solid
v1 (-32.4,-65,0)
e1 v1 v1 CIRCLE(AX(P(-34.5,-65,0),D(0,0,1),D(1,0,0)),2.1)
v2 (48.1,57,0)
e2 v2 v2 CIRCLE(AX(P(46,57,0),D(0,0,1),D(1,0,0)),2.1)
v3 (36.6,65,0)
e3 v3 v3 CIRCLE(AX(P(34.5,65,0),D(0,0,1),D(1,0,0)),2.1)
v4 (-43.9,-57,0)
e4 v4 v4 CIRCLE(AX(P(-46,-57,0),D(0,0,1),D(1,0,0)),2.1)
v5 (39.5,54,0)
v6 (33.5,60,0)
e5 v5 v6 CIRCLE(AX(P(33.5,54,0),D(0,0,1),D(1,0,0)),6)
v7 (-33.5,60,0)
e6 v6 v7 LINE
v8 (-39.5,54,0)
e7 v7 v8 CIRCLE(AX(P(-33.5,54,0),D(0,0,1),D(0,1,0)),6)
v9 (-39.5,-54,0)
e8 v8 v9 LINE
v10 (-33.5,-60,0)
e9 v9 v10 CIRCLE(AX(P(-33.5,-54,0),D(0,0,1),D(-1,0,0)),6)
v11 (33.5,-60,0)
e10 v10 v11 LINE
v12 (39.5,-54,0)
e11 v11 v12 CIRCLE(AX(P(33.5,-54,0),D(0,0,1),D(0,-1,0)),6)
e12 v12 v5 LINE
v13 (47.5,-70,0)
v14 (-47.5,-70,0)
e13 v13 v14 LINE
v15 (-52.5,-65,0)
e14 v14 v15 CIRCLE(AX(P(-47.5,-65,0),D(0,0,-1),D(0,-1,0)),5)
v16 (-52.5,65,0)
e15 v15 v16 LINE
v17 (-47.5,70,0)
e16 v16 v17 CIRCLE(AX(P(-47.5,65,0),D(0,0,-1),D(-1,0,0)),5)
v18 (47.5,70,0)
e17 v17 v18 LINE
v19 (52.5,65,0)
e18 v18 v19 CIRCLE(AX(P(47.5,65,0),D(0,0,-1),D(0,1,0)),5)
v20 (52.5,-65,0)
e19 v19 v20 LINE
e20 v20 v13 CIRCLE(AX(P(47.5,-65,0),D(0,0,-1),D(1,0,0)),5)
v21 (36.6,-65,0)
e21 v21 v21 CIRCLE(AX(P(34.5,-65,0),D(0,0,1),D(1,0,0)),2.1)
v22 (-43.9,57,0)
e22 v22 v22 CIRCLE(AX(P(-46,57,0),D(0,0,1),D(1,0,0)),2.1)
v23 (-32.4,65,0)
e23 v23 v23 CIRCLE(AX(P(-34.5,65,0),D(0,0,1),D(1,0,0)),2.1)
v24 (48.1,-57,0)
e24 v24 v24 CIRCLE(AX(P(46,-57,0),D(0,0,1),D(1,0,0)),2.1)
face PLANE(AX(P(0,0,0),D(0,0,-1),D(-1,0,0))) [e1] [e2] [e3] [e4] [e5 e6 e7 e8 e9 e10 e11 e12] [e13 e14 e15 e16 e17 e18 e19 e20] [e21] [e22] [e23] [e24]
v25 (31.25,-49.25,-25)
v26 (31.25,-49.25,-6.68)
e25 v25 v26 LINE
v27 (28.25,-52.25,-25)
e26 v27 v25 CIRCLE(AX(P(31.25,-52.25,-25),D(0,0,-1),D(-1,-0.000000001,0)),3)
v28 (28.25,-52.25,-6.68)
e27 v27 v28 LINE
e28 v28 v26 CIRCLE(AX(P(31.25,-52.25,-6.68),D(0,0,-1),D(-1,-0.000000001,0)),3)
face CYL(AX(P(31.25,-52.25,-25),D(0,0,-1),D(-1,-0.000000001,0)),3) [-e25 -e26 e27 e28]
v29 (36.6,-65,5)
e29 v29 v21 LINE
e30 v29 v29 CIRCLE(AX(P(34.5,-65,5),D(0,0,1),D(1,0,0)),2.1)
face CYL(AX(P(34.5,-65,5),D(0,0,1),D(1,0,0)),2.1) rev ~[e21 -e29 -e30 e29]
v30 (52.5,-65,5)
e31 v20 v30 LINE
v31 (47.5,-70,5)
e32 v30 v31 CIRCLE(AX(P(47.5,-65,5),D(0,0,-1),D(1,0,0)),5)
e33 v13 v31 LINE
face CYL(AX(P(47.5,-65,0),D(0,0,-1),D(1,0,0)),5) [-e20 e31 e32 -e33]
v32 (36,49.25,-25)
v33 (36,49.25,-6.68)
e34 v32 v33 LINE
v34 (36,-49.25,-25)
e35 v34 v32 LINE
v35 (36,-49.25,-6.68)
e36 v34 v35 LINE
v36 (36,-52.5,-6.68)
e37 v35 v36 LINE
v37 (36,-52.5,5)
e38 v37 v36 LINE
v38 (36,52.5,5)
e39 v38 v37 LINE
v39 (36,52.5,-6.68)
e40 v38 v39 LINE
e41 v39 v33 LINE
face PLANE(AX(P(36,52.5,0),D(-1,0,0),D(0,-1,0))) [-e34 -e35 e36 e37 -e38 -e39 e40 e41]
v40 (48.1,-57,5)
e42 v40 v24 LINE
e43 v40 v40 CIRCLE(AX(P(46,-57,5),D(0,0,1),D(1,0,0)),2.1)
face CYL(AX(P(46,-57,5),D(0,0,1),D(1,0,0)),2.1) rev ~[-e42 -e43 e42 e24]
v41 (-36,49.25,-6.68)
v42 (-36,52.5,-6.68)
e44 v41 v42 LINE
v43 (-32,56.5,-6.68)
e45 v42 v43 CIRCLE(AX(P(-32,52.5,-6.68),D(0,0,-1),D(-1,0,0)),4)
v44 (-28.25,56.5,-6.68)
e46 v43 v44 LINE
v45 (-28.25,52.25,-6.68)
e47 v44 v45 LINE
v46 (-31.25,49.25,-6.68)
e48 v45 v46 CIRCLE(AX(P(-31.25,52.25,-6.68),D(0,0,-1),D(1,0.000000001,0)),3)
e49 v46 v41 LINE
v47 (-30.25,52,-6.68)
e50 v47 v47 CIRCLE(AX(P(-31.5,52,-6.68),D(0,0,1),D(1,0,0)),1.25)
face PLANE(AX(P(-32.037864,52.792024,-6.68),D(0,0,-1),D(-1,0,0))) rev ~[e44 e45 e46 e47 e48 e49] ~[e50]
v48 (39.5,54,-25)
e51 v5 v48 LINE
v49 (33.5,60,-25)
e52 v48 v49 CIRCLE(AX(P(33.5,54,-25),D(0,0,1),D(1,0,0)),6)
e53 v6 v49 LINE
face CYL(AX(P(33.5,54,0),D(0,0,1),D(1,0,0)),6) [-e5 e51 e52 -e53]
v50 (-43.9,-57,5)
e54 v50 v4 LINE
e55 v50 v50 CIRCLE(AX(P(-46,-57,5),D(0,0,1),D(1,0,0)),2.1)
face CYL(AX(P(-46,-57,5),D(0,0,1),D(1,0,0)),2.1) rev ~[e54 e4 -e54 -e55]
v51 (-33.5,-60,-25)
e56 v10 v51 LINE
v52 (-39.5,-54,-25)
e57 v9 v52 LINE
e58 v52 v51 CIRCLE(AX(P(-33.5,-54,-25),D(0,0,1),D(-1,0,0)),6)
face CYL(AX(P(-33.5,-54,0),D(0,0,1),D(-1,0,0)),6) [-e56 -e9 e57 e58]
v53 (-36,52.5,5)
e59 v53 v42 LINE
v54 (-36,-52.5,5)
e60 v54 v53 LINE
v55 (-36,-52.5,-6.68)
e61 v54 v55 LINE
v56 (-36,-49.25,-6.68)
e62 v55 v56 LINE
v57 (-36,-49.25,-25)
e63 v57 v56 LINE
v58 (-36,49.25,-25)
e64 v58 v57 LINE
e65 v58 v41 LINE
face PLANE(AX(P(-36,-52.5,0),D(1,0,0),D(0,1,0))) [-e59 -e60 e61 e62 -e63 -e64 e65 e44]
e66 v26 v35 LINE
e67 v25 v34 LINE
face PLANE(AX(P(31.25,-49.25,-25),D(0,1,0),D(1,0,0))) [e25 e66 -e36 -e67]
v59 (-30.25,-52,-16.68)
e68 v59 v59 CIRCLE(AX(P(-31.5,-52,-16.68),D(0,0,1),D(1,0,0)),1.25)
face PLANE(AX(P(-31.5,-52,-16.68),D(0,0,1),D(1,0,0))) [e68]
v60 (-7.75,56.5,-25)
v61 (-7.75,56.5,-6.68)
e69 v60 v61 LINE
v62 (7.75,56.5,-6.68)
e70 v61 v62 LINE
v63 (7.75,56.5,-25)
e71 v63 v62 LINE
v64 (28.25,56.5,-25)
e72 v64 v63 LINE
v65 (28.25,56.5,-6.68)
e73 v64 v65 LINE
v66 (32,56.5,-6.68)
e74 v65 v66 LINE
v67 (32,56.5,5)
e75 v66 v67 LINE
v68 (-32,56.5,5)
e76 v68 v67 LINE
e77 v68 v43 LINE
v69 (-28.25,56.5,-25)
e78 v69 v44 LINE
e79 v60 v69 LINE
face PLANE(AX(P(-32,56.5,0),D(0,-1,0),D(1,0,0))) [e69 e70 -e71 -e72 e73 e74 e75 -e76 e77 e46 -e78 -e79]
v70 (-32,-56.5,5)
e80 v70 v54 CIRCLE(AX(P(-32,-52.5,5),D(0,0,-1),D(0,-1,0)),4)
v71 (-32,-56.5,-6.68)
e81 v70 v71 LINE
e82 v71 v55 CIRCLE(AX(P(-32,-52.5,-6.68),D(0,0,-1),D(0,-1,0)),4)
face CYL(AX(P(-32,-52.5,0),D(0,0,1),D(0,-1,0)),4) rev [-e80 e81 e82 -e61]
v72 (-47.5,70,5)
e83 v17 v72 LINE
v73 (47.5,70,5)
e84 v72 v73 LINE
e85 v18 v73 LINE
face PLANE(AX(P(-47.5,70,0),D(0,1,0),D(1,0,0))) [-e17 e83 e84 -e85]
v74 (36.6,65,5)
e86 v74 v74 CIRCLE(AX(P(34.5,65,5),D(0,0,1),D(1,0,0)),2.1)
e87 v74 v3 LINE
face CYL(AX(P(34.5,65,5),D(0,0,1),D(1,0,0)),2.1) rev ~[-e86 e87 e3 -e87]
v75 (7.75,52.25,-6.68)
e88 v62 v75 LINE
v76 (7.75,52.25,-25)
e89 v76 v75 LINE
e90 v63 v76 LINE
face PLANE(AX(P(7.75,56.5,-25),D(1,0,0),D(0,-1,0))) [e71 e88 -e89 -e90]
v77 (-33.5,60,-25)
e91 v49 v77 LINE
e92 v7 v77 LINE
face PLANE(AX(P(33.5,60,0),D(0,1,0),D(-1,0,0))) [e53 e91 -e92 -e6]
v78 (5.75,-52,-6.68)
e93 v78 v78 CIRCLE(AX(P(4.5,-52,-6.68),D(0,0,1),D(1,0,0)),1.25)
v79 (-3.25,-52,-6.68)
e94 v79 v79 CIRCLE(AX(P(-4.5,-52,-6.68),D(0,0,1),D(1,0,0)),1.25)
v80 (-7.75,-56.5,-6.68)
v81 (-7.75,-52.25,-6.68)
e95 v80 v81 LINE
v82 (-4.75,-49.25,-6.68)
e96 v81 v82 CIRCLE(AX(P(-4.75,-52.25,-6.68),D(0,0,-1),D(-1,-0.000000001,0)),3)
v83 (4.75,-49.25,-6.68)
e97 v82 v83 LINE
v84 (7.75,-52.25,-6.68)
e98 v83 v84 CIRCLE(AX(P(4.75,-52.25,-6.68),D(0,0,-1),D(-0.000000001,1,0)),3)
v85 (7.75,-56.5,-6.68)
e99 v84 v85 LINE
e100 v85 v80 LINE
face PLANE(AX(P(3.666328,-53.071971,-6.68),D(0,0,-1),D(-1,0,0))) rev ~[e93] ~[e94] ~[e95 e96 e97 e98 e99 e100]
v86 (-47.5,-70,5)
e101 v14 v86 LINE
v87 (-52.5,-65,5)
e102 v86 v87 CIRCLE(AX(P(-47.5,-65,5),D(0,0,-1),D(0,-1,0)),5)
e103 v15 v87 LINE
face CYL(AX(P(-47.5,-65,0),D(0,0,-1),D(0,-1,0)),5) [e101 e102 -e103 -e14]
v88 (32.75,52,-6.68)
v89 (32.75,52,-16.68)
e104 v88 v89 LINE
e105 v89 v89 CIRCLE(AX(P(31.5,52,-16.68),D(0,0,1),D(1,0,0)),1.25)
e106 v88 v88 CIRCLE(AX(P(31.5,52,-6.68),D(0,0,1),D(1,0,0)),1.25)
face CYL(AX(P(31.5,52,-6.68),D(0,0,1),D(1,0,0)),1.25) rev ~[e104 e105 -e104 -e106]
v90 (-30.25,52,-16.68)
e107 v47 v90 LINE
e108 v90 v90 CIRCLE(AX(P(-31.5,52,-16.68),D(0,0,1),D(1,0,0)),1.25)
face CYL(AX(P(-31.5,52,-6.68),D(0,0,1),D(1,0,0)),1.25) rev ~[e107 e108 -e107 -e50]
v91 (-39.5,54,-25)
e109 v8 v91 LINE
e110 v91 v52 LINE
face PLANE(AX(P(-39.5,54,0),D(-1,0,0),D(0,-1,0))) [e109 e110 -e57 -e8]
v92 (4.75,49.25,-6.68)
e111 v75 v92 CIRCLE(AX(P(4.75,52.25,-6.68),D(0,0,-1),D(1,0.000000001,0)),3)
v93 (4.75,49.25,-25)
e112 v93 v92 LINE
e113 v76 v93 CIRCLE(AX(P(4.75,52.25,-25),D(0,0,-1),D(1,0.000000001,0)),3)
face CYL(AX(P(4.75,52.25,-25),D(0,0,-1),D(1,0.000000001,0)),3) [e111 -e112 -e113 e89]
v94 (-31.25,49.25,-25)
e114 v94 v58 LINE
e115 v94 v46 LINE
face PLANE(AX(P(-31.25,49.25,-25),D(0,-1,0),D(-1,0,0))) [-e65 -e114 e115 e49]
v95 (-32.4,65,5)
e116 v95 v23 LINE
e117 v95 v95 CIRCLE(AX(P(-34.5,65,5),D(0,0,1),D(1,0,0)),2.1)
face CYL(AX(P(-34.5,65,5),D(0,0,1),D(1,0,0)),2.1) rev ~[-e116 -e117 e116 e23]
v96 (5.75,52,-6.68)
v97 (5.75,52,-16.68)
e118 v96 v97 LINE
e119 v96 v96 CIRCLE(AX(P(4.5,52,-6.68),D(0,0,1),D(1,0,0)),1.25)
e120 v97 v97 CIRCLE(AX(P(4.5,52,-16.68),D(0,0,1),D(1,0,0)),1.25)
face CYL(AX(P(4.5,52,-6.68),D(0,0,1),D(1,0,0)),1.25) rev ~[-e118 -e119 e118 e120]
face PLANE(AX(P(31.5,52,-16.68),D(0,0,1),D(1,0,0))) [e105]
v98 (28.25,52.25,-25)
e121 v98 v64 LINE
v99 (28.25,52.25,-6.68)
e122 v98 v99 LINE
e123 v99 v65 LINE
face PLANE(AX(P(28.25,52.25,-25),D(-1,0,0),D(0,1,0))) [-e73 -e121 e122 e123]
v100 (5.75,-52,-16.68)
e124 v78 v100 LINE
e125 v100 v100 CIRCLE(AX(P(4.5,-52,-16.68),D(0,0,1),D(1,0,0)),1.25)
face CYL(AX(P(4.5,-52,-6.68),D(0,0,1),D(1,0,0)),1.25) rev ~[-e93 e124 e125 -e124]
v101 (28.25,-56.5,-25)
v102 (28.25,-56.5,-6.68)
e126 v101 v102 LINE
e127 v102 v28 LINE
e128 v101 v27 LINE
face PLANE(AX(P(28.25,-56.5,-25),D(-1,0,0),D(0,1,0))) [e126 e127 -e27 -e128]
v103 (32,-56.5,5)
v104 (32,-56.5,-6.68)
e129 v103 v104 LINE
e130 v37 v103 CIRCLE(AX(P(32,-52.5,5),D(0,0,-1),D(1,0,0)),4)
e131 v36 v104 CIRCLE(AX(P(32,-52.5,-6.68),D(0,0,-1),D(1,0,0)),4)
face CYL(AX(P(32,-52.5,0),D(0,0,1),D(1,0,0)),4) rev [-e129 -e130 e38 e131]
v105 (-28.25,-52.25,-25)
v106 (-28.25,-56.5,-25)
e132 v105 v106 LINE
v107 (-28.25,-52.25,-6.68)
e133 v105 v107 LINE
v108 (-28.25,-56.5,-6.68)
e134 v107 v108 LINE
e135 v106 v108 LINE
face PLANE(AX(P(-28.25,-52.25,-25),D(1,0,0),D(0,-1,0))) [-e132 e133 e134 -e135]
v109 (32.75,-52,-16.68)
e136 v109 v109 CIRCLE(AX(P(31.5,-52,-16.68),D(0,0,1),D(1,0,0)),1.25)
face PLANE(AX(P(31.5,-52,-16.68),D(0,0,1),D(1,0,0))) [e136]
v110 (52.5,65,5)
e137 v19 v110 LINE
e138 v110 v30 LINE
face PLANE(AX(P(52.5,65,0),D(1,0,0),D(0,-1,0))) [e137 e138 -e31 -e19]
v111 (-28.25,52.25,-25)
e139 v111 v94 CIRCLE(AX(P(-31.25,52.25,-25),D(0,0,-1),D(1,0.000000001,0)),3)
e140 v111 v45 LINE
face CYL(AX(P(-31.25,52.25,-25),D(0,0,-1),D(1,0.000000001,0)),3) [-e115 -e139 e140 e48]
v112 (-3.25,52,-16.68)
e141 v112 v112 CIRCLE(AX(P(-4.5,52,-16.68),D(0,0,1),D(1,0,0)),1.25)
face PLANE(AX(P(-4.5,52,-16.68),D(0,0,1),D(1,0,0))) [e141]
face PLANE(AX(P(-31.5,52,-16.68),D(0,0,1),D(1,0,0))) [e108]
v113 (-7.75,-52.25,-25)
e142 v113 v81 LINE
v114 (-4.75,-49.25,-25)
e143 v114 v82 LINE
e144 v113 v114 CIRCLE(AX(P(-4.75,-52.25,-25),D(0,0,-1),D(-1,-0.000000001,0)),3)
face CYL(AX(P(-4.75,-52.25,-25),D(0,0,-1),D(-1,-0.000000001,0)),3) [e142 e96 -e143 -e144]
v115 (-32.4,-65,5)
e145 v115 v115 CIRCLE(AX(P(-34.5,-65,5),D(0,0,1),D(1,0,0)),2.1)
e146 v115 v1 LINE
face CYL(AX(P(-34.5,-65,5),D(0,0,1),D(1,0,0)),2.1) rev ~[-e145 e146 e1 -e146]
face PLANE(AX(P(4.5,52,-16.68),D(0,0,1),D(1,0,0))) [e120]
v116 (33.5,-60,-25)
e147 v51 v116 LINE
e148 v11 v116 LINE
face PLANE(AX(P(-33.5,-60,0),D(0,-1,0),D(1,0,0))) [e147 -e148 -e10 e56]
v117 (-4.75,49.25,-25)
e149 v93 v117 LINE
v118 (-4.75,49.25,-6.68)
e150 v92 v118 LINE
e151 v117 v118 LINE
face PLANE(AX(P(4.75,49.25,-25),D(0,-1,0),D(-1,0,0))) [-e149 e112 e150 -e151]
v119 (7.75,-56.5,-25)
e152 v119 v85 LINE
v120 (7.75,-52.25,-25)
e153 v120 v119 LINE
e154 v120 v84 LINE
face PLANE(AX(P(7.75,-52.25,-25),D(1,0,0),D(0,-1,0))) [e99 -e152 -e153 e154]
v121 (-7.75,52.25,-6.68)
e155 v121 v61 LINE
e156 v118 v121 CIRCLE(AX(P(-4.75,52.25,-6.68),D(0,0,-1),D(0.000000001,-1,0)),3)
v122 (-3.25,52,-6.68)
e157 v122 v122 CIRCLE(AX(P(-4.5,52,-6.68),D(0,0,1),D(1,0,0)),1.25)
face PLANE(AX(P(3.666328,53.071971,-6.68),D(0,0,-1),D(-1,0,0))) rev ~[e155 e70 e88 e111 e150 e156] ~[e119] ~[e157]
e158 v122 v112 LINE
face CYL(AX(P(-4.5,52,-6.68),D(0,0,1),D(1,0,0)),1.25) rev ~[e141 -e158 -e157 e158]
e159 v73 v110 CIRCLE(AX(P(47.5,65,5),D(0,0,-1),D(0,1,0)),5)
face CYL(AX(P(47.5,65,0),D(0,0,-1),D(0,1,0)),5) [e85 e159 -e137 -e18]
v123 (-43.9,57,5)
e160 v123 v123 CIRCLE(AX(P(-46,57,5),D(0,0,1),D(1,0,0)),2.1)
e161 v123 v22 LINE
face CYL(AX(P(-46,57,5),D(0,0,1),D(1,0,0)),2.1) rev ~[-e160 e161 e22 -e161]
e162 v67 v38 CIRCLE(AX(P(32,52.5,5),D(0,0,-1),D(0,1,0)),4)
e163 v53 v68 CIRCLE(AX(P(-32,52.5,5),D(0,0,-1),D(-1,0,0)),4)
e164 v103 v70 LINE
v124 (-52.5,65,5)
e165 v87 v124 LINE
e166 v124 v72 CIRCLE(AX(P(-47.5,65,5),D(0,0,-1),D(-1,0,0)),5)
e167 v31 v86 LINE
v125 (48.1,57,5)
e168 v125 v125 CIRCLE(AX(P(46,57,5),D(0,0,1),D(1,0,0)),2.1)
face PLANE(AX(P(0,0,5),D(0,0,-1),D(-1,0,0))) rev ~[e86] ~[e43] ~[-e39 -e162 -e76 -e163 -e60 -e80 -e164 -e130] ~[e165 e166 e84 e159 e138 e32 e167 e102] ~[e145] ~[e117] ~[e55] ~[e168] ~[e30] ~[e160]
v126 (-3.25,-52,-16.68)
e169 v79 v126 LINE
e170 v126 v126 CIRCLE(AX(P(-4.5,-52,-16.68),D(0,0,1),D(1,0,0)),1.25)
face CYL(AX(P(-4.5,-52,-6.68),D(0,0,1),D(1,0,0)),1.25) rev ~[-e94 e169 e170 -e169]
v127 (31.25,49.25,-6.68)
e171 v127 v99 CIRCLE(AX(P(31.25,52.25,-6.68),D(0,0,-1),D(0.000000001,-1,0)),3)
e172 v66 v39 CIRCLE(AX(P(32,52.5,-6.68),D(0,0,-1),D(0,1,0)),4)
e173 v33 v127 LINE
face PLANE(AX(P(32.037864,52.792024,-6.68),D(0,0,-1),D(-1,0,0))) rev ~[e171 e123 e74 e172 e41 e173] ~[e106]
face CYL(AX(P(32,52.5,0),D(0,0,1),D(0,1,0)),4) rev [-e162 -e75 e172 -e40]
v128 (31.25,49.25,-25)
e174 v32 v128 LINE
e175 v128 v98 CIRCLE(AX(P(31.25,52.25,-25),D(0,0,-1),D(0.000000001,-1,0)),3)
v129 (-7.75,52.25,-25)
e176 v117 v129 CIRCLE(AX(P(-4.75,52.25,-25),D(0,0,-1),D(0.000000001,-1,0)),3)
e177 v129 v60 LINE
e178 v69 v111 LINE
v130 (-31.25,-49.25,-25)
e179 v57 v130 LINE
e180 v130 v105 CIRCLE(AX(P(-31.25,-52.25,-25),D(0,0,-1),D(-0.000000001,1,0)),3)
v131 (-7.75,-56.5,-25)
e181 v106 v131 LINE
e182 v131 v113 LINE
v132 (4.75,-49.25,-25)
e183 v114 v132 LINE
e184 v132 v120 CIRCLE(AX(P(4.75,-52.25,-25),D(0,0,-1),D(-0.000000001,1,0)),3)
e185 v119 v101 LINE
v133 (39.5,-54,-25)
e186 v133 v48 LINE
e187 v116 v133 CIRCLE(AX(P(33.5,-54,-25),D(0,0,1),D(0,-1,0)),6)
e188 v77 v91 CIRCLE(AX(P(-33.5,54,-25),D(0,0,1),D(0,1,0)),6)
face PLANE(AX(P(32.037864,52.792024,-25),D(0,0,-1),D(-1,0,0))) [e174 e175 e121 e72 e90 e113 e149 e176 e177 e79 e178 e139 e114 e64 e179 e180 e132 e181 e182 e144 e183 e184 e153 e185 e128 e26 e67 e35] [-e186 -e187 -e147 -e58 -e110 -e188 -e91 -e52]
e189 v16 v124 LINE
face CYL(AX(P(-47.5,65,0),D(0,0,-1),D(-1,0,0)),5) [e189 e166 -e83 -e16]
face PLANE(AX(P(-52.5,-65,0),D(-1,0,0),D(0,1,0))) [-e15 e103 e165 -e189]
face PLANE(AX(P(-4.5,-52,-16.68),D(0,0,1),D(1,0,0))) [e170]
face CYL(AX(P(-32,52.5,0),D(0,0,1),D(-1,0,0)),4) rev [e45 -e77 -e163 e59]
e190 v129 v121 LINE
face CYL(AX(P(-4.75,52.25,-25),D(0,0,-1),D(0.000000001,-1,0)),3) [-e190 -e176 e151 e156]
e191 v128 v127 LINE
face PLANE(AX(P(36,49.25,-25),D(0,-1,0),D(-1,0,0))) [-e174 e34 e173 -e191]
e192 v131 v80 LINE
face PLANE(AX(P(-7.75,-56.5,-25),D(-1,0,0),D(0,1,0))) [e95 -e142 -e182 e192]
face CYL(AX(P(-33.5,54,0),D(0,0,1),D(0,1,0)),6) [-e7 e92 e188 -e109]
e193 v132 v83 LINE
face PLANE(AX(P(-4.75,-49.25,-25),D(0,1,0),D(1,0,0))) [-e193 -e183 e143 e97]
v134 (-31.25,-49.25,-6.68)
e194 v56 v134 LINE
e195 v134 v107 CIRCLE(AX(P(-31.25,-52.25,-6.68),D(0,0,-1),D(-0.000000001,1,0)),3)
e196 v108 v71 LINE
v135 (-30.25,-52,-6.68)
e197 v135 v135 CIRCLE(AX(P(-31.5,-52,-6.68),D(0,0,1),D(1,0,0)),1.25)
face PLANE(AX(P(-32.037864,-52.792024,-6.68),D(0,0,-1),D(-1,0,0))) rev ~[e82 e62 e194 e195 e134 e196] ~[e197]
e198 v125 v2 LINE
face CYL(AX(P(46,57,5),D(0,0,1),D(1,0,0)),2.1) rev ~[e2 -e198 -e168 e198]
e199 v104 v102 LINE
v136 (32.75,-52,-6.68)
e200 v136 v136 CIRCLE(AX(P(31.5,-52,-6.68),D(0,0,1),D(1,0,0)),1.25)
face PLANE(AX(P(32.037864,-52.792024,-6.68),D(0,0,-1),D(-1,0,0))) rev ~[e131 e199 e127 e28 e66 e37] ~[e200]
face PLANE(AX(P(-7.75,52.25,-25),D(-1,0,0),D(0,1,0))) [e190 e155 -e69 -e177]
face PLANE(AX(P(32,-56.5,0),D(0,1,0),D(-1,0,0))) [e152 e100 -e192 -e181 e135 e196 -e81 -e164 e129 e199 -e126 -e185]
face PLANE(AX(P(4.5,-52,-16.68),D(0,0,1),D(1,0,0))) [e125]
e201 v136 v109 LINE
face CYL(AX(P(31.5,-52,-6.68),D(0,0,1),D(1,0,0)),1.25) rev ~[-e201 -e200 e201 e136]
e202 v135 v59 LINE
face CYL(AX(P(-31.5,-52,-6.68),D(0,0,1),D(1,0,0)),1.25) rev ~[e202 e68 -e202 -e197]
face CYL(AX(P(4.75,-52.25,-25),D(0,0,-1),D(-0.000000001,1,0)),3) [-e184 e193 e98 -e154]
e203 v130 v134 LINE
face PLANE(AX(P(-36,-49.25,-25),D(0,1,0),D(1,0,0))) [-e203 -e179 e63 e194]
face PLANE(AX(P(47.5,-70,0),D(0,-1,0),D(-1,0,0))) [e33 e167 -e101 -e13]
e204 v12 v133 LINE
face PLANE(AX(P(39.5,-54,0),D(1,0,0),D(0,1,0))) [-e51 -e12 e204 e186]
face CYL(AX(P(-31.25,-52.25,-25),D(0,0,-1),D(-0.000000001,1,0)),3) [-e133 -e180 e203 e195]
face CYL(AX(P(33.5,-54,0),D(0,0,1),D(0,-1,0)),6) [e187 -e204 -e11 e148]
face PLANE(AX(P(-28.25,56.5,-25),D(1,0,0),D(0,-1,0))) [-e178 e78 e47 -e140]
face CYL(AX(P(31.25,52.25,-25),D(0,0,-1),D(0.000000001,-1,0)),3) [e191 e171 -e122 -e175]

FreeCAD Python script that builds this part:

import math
import FreeCAD as App
import Part
import Sketcher
from FreeCAD import Vector

doc = App.newDocument("Part")
body = doc.addObject("PartDesign::Body", "Body")

sketch1 = doc.addObject("Sketcher::SketchObject", "Sketch")
body.addObject(sketch1)
sketch1.AttachmentSupport = (doc.XY_Plane, [""])
sketch1.MapMode = "FlatFace"
sketch1.addGeometry([
    Part.LineSegment(Vector(47.5, 70, 0), Vector(-47.5, 70, 0)),
    Part.ArcOfCircle(Part.Circle(Vector(-47.5, 65, 0), Vector(0, 0, 1), 5), math.radians(90), math.radians(180)),
    Part.LineSegment(Vector(-52.5, 65, 0), Vector(-52.5, -65, 0)),
    Part.ArcOfCircle(Part.Circle(Vector(-47.5, -65, 0), Vector(0, 0, 1), 5), math.radians(180), math.radians(270)),
    Part.LineSegment(Vector(-47.5, -70, 0), Vector(47.5, -70, 0)),
    Part.ArcOfCircle(Part.Circle(Vector(47.5, -65, 0), Vector(0, 0, 1), 5), math.radians(-90), math.radians(0)),
    Part.LineSegment(Vector(52.5, -65, 0), Vector(52.5, 65, 0)),
    Part.ArcOfCircle(Part.Circle(Vector(47.5, 65, 0), Vector(0, 0, 1), 5), math.radians(0), math.radians(90)),
    Part.LineSegment(Vector(-32, 56.5, 0), Vector(32, 56.5, 0)),
    Part.ArcOfCircle(Part.Circle(Vector(32, 52.5, 0), Vector(0, 0, 1), 4), math.radians(0), math.radians(90)),
    Part.LineSegment(Vector(36, 52.5, 0), Vector(36, -52.5, 0)),
    Part.ArcOfCircle(Part.Circle(Vector(32, -52.5, 0), Vector(0, 0, 1), 4), math.radians(-90), math.radians(0)),
    Part.LineSegment(Vector(32, -56.5, 0), Vector(-32, -56.5, 0)),
    Part.ArcOfCircle(Part.Circle(Vector(-32, -52.5, 0), Vector(0, 0, 1), 4), math.radians(180), math.radians(270)),
    Part.LineSegment(Vector(-36, -52.5, 0), Vector(-36, 52.5, 0)),
    Part.ArcOfCircle(Part.Circle(Vector(-32, 52.5, 0), Vector(0, 0, 1), 4), math.radians(90), math.radians(180)),
], False)
sketch1.addConstraint([
    Sketcher.Constraint("Tangent", 0, 2, 1, 1),
    Sketcher.Constraint("Tangent", 1, 2, 2, 1),
    Sketcher.Constraint("Tangent", 2, 2, 3, 1),
    Sketcher.Constraint("Tangent", 3, 2, 4, 1),
    Sketcher.Constraint("Tangent", 4, 2, 5, 1),
    Sketcher.Constraint("Tangent", 5, 2, 6, 1),
    Sketcher.Constraint("Tangent", 6, 2, 7, 1),
    Sketcher.Constraint("Tangent", 7, 2, 0, 1),
    Sketcher.Constraint("Tangent", 8, 2, 9, 2),
    Sketcher.Constraint("Tangent", 9, 1, 10, 1),
    Sketcher.Constraint("Tangent", 10, 2, 11, 2),
    Sketcher.Constraint("Tangent", 11, 1, 12, 1),
    Sketcher.Constraint("Tangent", 12, 2, 13, 2),
    Sketcher.Constraint("Tangent", 13, 1, 14, 1),
    Sketcher.Constraint("Tangent", 14, 2, 15, 2),
    Sketcher.Constraint("Tangent", 15, 1, 8, 1),
    Sketcher.Constraint("Horizontal", 0),
    Sketcher.Constraint("Vertical", 2),
    Sketcher.Constraint("Horizontal", 4),
    Sketcher.Constraint("Vertical", 6),
    Sketcher.Constraint("Horizontal", 8),
    Sketcher.Constraint("Vertical", 10),
    Sketcher.Constraint("Horizontal", 12),
    Sketcher.Constraint("Vertical", 14),
    Sketcher.Constraint("Equal", 1, 3),
    Sketcher.Constraint("Equal", 3, 5),
    Sketcher.Constraint("Equal", 5, 7),
    Sketcher.Constraint("Equal", 9, 11),
    Sketcher.Constraint("Equal", 11, 13),
    Sketcher.Constraint("Equal", 13, 15),
    Sketcher.Constraint("Symmetric", 1, 3, 5, 3, -1, 1),
    Sketcher.Constraint("Symmetric", 9, 3, 13, 3, -1, 1),
    Sketcher.Constraint("Radius", 1, 5.0),
    Sketcher.Constraint("Radius", 9, 4.0),
    Sketcher.Constraint("DistanceX", 0, 2, 0, 1, 95.0),
    Sketcher.Constraint("DistanceX", 8, 1, 8, 2, 64.0),
    Sketcher.Constraint("DistanceY", 2, 2, 2, 1, 130.0),
    Sketcher.Constraint("DistanceY", 10, 2, 10, 1, 105.0),
])
pad1 = doc.addObject("PartDesign::Pad", "Pad")
body.addObject(pad1)
pad1.Profile = sketch1
pad1.Length = 5

sketch2 = doc.addObject("Sketcher::SketchObject", "Sketch001")
body.addObject(sketch2)
sketch2.AttachmentSupport = (doc.XY_Plane, [""])
sketch2.MapMode = "FlatFace"
sketch2.addGeometry([
    Part.LineSegment(Vector(-34, 60, 0), Vector(34, 60, 0)),
    Part.ArcOfCircle(Part.Circle(Vector(34, 54, 0), Vector(0, 0, 1), 6), math.radians(0), math.radians(90)),
    Part.LineSegment(Vector(40, 54, 0), Vector(40, -54, 0)),
    Part.ArcOfCircle(Part.Circle(Vector(34, -54, 0), Vector(0, 0, 1), 6), math.radians(-90), math.radians(0)),
    Part.LineSegment(Vector(34, -60, 0), Vector(-34, -60, 0)),
    Part.ArcOfCircle(Part.Circle(Vector(-34, -54, 0), Vector(0, 0, 1), 6), math.radians(180), math.radians(270)),
    Part.LineSegment(Vector(-40, -54, 0), Vector(-40, 54, 0)),
    Part.ArcOfCircle(Part.Circle(Vector(-34, 54, 0), Vector(0, 0, 1), 6), math.radians(90), math.radians(180)),
], False)
sketch2.addConstraint([
    Sketcher.Constraint("Tangent", 0, 2, 1, 2),
    Sketcher.Constraint("Tangent", 1, 1, 2, 1),
    Sketcher.Constraint("Tangent", 2, 2, 3, 2),
    Sketcher.Constraint("Tangent", 3, 1, 4, 1),
    Sketcher.Constraint("Tangent", 4, 2, 5, 2),
    Sketcher.Constraint("Tangent", 5, 1, 6, 1),
    Sketcher.Constraint("Tangent", 6, 2, 7, 2),
    Sketcher.Constraint("Tangent", 7, 1, 0, 1),
    Sketcher.Constraint("Horizontal", 0),
    Sketcher.Constraint("Vertical", 2),
    Sketcher.Constraint("Horizontal", 4),
    Sketcher.Constraint("Vertical", 6),
    Sketcher.Constraint("Equal", 1, 3),
    Sketcher.Constraint("Equal", 3, 5),
    Sketcher.Constraint("Equal", 5, 7),
    Sketcher.Constraint("Symmetric", 1, 3, 5, 3, -1, 1),
    Sketcher.Constraint("Radius", 1, 6.0),
    Sketcher.Constraint("DistanceX", 0, 1, 0, 2, 67.0),
    Sketcher.Constraint("DistanceY", 2, 2, 2, 1, 108.0),
])
pad2 = doc.addObject("PartDesign::Pad", "Pad001")
body.addObject(pad2)
pad2.Profile = sketch2
pad2.Length = 25
pad2.Reversed = True

sketch3 = doc.addObject("Sketcher::SketchObject", "Sketch002")
body.addObject(sketch3)
sketch3.AttachmentSupport = (doc.XY_Plane, [""])
sketch3.MapMode = "FlatFace"
sketch3.AttachmentOffset = App.Placement(Vector(0, 0, 5), App.Rotation())
sketch3.addGeometry(Part.Circle(Vector(34.5, 65, 0), Vector(0, 0, 1), 2.1), False)
sketch3.addConstraint([
    Sketcher.Constraint("Diameter", 0, 4.2),
    Sketcher.Constraint("DistanceY", -1, 1, 0, 3, 65.0),
    Sketcher.Constraint("DistanceX", -1, 1, 0, 3, 34.5),
])
pocket1 = doc.addObject("PartDesign::Pocket", "Pocket")
body.addObject(pocket1)
pocket1.Profile = sketch3
pocket1.Type = "UpToFirst"

sketch4 = doc.addObject("Sketcher::SketchObject", "Sketch003")
body.addObject(sketch4)
sketch4.AttachmentSupport = (doc.XY_Plane, [""])
sketch4.MapMode = "FlatFace"
sketch4.AttachmentOffset = App.Placement(Vector(0, 0, 5), App.Rotation())
sketch4.addGeometry(Part.Circle(Vector(-34.5, 65, 0), Vector(0, 0, 1), 2.1), False)
sketch4.addConstraint([
    Sketcher.Constraint("Diameter", 0, 4.2),
    Sketcher.Constraint("DistanceY", -1, 1, 0, 3, 65.0),
    Sketcher.Constraint("DistanceX", 0, 3, -1, 1, 34.5),
])
pocket2 = doc.addObject("PartDesign::Pocket", "Pocket001")
body.addObject(pocket2)
pocket2.Profile = sketch4
pocket2.Type = "UpToFirst"

sketch5 = doc.addObject("Sketcher::SketchObject", "Sketch004")
body.addObject(sketch5)
sketch5.AttachmentSupport = (doc.XY_Plane, [""])
sketch5.MapMode = "FlatFace"
sketch5.AttachmentOffset = App.Placement(Vector(0, 0, 5), App.Rotation())
sketch5.addGeometry(Part.Circle(Vector(-34.5, -65, 0), Vector(0, 0, 1), 2.1), False)
sketch5.addConstraint([
    Sketcher.Constraint("Diameter", 0, 4.2),
    Sketcher.Constraint("DistanceY", 0, 3, -1, 1, 65.0),
    Sketcher.Constraint("DistanceX", 0, 3, -1, 1, 34.5),
])
pocket3 = doc.addObject("PartDesign::Pocket", "Pocket002")
body.addObject(pocket3)
pocket3.Profile = sketch5
pocket3.Type = "UpToFirst"

sketch6 = doc.addObject("Sketcher::SketchObject", "Sketch005")
body.addObject(sketch6)
sketch6.AttachmentSupport = (doc.XY_Plane, [""])
sketch6.MapMode = "FlatFace"
sketch6.AttachmentOffset = App.Placement(Vector(0, 0, 5), App.Rotation())
sketch6.addGeometry(Part.Circle(Vector(34.5, -65, 0), Vector(0, 0, 1), 2.1), False)
sketch6.addConstraint([
    Sketcher.Constraint("Diameter", 0, 4.2),
    Sketcher.Constraint("DistanceY", 0, 3, -1, 1, 65.0),
    Sketcher.Constraint("DistanceX", -1, 1, 0, 3, 34.5),
])
pocket4 = doc.addObject("PartDesign::Pocket", "Pocket003")
body.addObject(pocket4)
pocket4.Profile = sketch6
pocket4.Type = "UpToFirst"

sketch7 = doc.addObject("Sketcher::SketchObject", "Sketch006")
body.addObject(sketch7)
sketch7.AttachmentSupport = (doc.XY_Plane, [""])
sketch7.MapMode = "FlatFace"
sketch7.addGeometry([
    Part.LineSegment(Vector(32, 56.5, 0), Vector(-32, 56.5, 0)),
    Part.ArcOfCircle(Part.Circle(Vector(-32, 52.5, 0), Vector(0, 0, 1), 4), math.radians(90), math.radians(180)),
    Part.LineSegment(Vector(-36, 52.5, 0), Vector(-36, -52.5, 0)),
    Part.ArcOfCircle(Part.Circle(Vector(-32, -52.5, 0), Vector(0, 0, 1), 4), math.radians(180), math.radians(270)),
    Part.LineSegment(Vector(-32, -56.5, 0), Vector(32, -56.5, 0)),
    Part.ArcOfCircle(Part.Circle(Vector(32, -52.5, 0), Vector(0, 0, 1), 4), math.radians(-90), math.radians(0)),
    Part.LineSegment(Vector(36, -52.5, 0), Vector(36, 52.5, 0)),
    Part.ArcOfCircle(Part.Circle(Vector(32, 52.5, 0), Vector(0, 0, 1), 4), math.radians(0), math.radians(90)),
], False)
sketch7.addConstraint([
    Sketcher.Constraint("Tangent", 0, 2, 1, 1),
    Sketcher.Constraint("Tangent", 1, 2, 2, 1),
    Sketcher.Constraint("Tangent", 2, 2, 3, 1),
    Sketcher.Constraint("Tangent", 3, 2, 4, 1),
    Sketcher.Constraint("Tangent", 4, 2, 5, 1),
    Sketcher.Constraint("Tangent", 5, 2, 6, 1),
    Sketcher.Constraint("Tangent", 6, 2, 7, 1),
    Sketcher.Constraint("Tangent", 7, 2, 0, 1),
    Sketcher.Constraint("Horizontal", 0),
    Sketcher.Constraint("Vertical", 2),
    Sketcher.Constraint("Horizontal", 4),
    Sketcher.Constraint("Vertical", 6),
    Sketcher.Constraint("Equal", 1, 3),
    Sketcher.Constraint("Equal", 3, 5),
    Sketcher.Constraint("Equal", 5, 7),
    Sketcher.Constraint("Symmetric", 1, 3, 5, 3, -1, 1),
    Sketcher.Constraint("Radius", 1, 4.0),
    Sketcher.Constraint("DistanceX", 0, 2, 0, 1, 64.0),
    Sketcher.Constraint("DistanceY", 2, 2, 2, 1, 105.0),
])
pocket5 = doc.addObject("PartDesign::Pocket", "Pocket004")
body.addObject(pocket5)
pocket5.Profile = sketch7
pocket5.Type = "UpToFirst"

sketch8 = doc.addObject("Sketcher::SketchObject", "Sketch007")
body.addObject(sketch8)
sketch8.AttachmentSupport = (doc.XY_Plane, [""])
sketch8.MapMode = "FlatFace"
sketch8.AttachmentOffset = App.Placement(Vector(0, 0, -25), App.Rotation())
sketch8.addGeometry([
    Part.LineSegment(Vector(28.2, 52.2, 0), Vector(28.2, 56.5, 0)),
    Part.LineSegment(Vector(28.2, 56.5, 0), Vector(32, 56.5, 0)),
    Part.ArcOfCircle(Part.Circle(Vector(32, 52.5, 0), Vector(0, 0, 1), 4), math.radians(0), math.radians(90)),
    Part.LineSegment(Vector(36, 52.5, 0), Vector(36, 49.2, 0)),
    Part.LineSegment(Vector(36, 49.2, 0), Vector(31.2, 49.2, 0)),
    Part.ArcOfCircle(Part.Circle(Vector(31.2, 52.2, 0), Vector(0, 0, 1), 3), math.radians(180), math.radians(270)),
    Part.LineSegment(Vector(7.8, 56.5, 0), Vector(7.8, 52.2, 0)),
    Part.ArcOfCircle(Part.Circle(Vector(4.8, 52.2, 0), Vector(0, 0, 1), 3), math.radians(-90), math.radians(0)),
    Part.LineSegment(Vector(4.8, 49.2, 0), Vector(-4.8, 49.2, 0)),
    Part.ArcOfCircle(Part.Circle(Vector(-4.8, 52.2, 0), Vector(0, 0, 1), 3), math.radians(180), math.radians(270)),
    Part.LineSegment(Vector(-7.8, 52.2, 0), Vector(-7.8, 56.5, 0)),
    Part.LineSegment(Vector(-7.8, 56.5, 0), Vector(7.8, 56.5, 0)),
    Part.LineSegment(Vector(-28.2, 56.5, 0), Vector(-28.2, 52.2, 0)),
    Part.ArcOfCircle(Part.Circle(Vector(-31.2, 52.2, 0), Vector(0, 0, 1), 3), math.radians(-90), math.radians(0)),
    Part.LineSegment(Vector(-31.2, 49.2, 0), Vector(-36, 49.2, 0)),
    Part.LineSegment(Vector(-36, 49.2, 0), Vector(-36, 52.5, 0)),
    Part.ArcOfCircle(Part.Circle(Vector(-32, 52.5, 0), Vector(0, 0, 1), 4), math.radians(90), math.radians(180)),
    Part.LineSegment(Vector(-32, 56.5, 0), Vector(-28.2, 56.5, 0)),
    Part.LineSegment(Vector(31.2, -49.2, 0), Vector(36, -49.2, 0)),
    Part.LineSegment(Vector(36, -49.2, 0), Vector(36, -52.5, 0)),
    Part.ArcOfCircle(Part.Circle(Vector(32, -52.5, 0), Vector(0, 0, 1), 4), math.radians(-90), math.radians(0)),
    Part.LineSegment(Vector(32, -56.5, 0), Vector(28.2, -56.5, 0)),
    Part.LineSegment(Vector(28.2, -56.5, 0), Vector(28.2, -52.2, 0)),
    Part.ArcOfCircle(Part.Circle(Vector(31.2, -52.2, 0), Vector(0, 0, 1), 3), math.radians(90), math.radians(180)),
    Part.LineSegment(Vector(7.8, -56.5, 0), Vector(-7.8, -56.5, 0)),
    Part.LineSegment(Vector(-7.8, -56.5, 0), Vector(-7.8, -52.2, 0)),
    Part.ArcOfCircle(Part.Circle(Vector(-4.8, -52.2, 0), Vector(0, 0, 1), 3), math.radians(90), math.radians(180)),
    Part.LineSegment(Vector(-4.8, -49.2, 0), Vector(4.8, -49.2, 0)),
    Part.ArcOfCircle(Part.Circle(Vector(4.8, -52.2, 0), Vector(0, 0, 1), 3), math.radians(0), math.radians(90)),
    Part.LineSegment(Vector(7.8, -52.2, 0), Vector(7.8, -56.5, 0)),
    Part.LineSegment(Vector(-36, -52.5, 0), Vector(-36, -49.2, 0)),
    Part.LineSegment(Vector(-36, -49.2, 0), Vector(-31.2, -49.2, 0)),
    Part.ArcOfCircle(Part.Circle(Vector(-31.2, -52.2, 0), Vector(0, 0, 1), 3), math.radians(0), math.radians(90)),
    Part.LineSegment(Vector(-28.2, -52.2, 0), Vector(-28.2, -56.5, 0)),
    Part.LineSegment(Vector(-28.2, -56.5, 0), Vector(-32, -56.5, 0)),
    Part.ArcOfCircle(Part.Circle(Vector(-32, -52.5, 0), Vector(0, 0, 1), 4), math.radians(180), math.radians(270)),
], False)
sketch8.addConstraint([
    Sketcher.Constraint("Coincident", 0, 2, 1, 1),
    Sketcher.Constraint("Tangent", 1, 2, 2, 2),
    Sketcher.Constraint("Tangent", 2, 1, 3, 1),
    Sketcher.Constraint("Coincident", 3, 2, 4, 1),
    Sketcher.Constraint("Tangent", 4, 2, 5, 2),
    Sketcher.Constraint("Tangent", 5, 1, 0, 1),
    Sketcher.Constraint("Tangent", 6, 2, 7, 2),
    Sketcher.Constraint("Tangent", 7, 1, 8, 1),
    Sketcher.Constraint("Tangent", 8, 2, 9, 2),
    Sketcher.Constraint("Tangent", 9, 1, 10, 1),
    Sketcher.Constraint("Coincident", 10, 2, 11, 1),
    Sketcher.Constraint("Coincident", 11, 2, 6, 1),
    Sketcher.Constraint("Tangent", 12, 2, 13, 2),
    Sketcher.Constraint("Tangent", 13, 1, 14, 1),
    Sketcher.Constraint("Coincident", 14, 2, 15, 1),
    Sketcher.Constraint("Tangent", 15, 2, 16, 2),
    Sketcher.Constraint("Tangent", 16, 1, 17, 1),
    Sketcher.Constraint("Coincident", 17, 2, 12, 1),
    Sketcher.Constraint("Coincident", 18, 2, 19, 1),
    Sketcher.Constraint("Tangent", 19, 2, 20, 2),
    Sketcher.Constraint("Tangent", 20, 1, 21, 1),
    Sketcher.Constraint("Coincident", 21, 2, 22, 1),
    Sketcher.Constraint("Tangent", 22, 2, 23, 2),
    Sketcher.Constraint("Tangent", 23, 1, 18, 1),
    Sketcher.Constraint("Coincident", 24, 2, 25, 1),
    Sketcher.Constraint("Tangent", 25, 2, 26, 2),
    Sketcher.Constraint("Tangent", 26, 1, 27, 1),
    Sketcher.Constraint("Tangent", 27, 2, 28, 2),
    Sketcher.Constraint("Tangent", 28, 1, 29, 1),
    Sketcher.Constraint("Coincident", 29, 2, 24, 1),
    Sketcher.Constraint("Coincident", 30, 2, 31, 1),
    Sketcher.Constraint("Tangent", 31, 2, 32, 2),
    Sketcher.Constraint("Tangent", 32, 1, 33, 1),
    Sketcher.Constraint("Coincident", 33, 2, 34, 1),
    Sketcher.Constraint("Tangent", 34, 2, 35, 2),
    Sketcher.Constraint("Tangent", 35, 1, 30, 1),
    Sketcher.Constraint("Vertical", 0),
    Sketcher.Constraint("Horizontal", 1),
    Sketcher.Constraint("Vertical", 3),
    Sketcher.Constraint("Horizontal", 4),
    Sketcher.Constraint("Vertical", 6),
    Sketcher.Constraint("Horizontal", 8),
    Sketcher.Constraint("Vertical", 10),
    Sketcher.Constraint("Horizontal", 11),
    Sketcher.Constraint("Vertical", 12),
    Sketcher.Constraint("Horizontal", 14),
    Sketcher.Constraint("Vertical", 15),
    Sketcher.Constraint("Horizontal", 17),
    Sketcher.Constraint("Horizontal", 18),
    Sketcher.Constraint("Vertical", 19),
    Sketcher.Constraint("Horizontal", 21),
    Sketcher.Constraint("Vertical", 22),
    Sketcher.Constraint("Horizontal", 24),
    Sketcher.Constraint("Vertical", 25),
    Sketcher.Constraint("Horizontal", 27),
    Sketcher.Constraint("Vertical", 29),
    Sketcher.Constraint("Vertical", 30),
    Sketcher.Constraint("Horizontal", 31),
    Sketcher.Constraint("Vertical", 33),
    Sketcher.Constraint("Horizontal", 34),
    Sketcher.Constraint("Equal", 5, 7),
    Sketcher.Constraint("Equal", 7, 9),
    Sketcher.Constraint("Equal", 9, 13),
    Sketcher.Constraint("Equal", 2, 16),
    Sketcher.Constraint("Equal", 16, 20),
    Sketcher.Constraint("Equal", 13, 23),
    Sketcher.Constraint("Equal", 23, 26),
    Sketcher.Constraint("Equal", 26, 28),
    Sketcher.Constraint("Equal", 28, 32),
    Sketcher.Constraint("Equal", 20, 35),
    Sketcher.Constraint("Symmetric", 16, 3, 20, 3, -1, 1),
    Sketcher.Constraint("Symmetric", 13, 3, 23, 3, -1, 1),
    Sketcher.Constraint("Symmetric", 7, 3, 26, 3, -1, 1),
    Sketcher.Constraint("Symmetric", 5, 3, 32, 3, -1, 1),
    Sketcher.Constraint("Symmetric", 2, 3, 35, 3, -1, 1),
    Sketcher.Constraint("Symmetric", 10, 2, 29, 2, -1, 1),
    Sketcher.Constraint("Symmetric", 5, 3, 13, 3, -2),
    Sketcher.Constraint("Symmetric", 2, 3, 16, 3, -2),
    Sketcher.Constraint("Horizontal", 5, 3, 7, 3),
    Sketcher.Constraint("Horizontal", 1, 2, 10, 2),
    Sketcher.Constraint("Vertical", 9, 3, 26, 3),
    Sketcher.Constraint("Radius", 2, 4.0),
    Sketcher.Constraint("Radius", 5, 3.0),
    Sketcher.Constraint("DistanceX", 8, 2, 8, 1, 9.5),
    Sketcher.Constraint("DistanceX", -1, 1, 2, 3, 32.0),
    Sketcher.Constraint("DistanceX", 9, 3, 5, 3, 36.0),
    Sketcher.Constraint("DistanceY", 20, 3, 2, 3, 105.0),
    Sketcher.Constraint("DistanceY", 0, 1, 0, 2, 4.25),
])
pad3 = doc.addObject("PartDesign::Pad", "Pad002")
body.addObject(pad3)
pad3.Profile = sketch8
pad3.Length = 18.32

sketch9 = doc.addObject("Sketcher::SketchObject", "Sketch008")
body.addObject(sketch9)
sketch9.AttachmentSupport = (doc.XY_Plane, [""])
sketch9.MapMode = "FlatFace"
sketch9.AttachmentOffset = App.Placement(Vector(0, 0, -6.68), App.Rotation())
sketch9.addGeometry([
    Part.Circle(Vector(-4.5, 52, 0), Vector(0, 0, 1), 1.2),
    Part.Circle(Vector(-31.5, 52, 0), Vector(0, 0, 1), 1.2),
    Part.Circle(Vector(31.5, 52, 0), Vector(0, 0, 1), 1.2),
    Part.Circle(Vector(4.5, 52, 0), Vector(0, 0, 1), 1.2),
    Part.Circle(Vector(4.5, -52, 0), Vector(0, 0, 1), 1.2),
    Part.Circle(Vector(31.5, -52, 0), Vector(0, 0, 1), 1.2),
    Part.Circle(Vector(-31.5, -52, 0), Vector(0, 0, 1), 1.2),
    Part.Circle(Vector(-4.5, -52, 0), Vector(0, 0, 1), 1.2),
], False)
sketch9.addConstraint([
    Sketcher.Constraint("Equal", 0, 1),
    Sketcher.Constraint("Equal", 1, 2),
    Sketcher.Constraint("Equal", 2, 3),
    Sketcher.Constraint("Equal", 3, 4),
    Sketcher.Constraint("Equal", 4, 5),
    Sketcher.Constraint("Equal", 5, 6),
    Sketcher.Constraint("Equal", 6, 7),
    Sketcher.Constraint("Symmetric", 0, 3, 4, 3, -1, 1),
    Sketcher.Constraint("Symmetric", 1, 3, 5, 3, -1, 1),
    Sketcher.Constraint("Symmetric", 2, 3, 6, 3, -1, 1),
    Sketcher.Constraint("Symmetric", 3, 3, 7, 3, -1, 1),
    Sketcher.Constraint("Symmetric", 1, 3, 2, 3, -2),
    Sketcher.Constraint("Symmetric", 0, 3, 3, 3, -2),
    Sketcher.Constraint("Horizontal", 0, 3, 1, 3),
    Sketcher.Constraint("Diameter", 0, 2.5),
    Sketcher.Constraint("DistanceY", -1, 1, 0, 3, 52.0),
    Sketcher.Constraint("DistanceX", 1, 3, 0, 3, 27.0),
    Sketcher.Constraint("DistanceX", 0, 3, 2, 3, 36.0),
])
pocket6 = doc.addObject("PartDesign::Pocket", "Pocket005")
body.addObject(pocket6)
pocket6.Profile = sketch9
pocket6.Length = 10

sketch10 = doc.addObject("Sketcher::SketchObject", "Sketch009")
body.addObject(sketch10)
sketch10.AttachmentSupport = (doc.XY_Plane, [""])
sketch10.MapMode = "FlatFace"
sketch10.AttachmentOffset = App.Placement(Vector(0, 0, 5), App.Rotation())
sketch10.addGeometry(Part.Circle(Vector(-46, 57, 0), Vector(0, 0, 1), 2.1), False)
sketch10.addConstraint([
    Sketcher.Constraint("Diameter", 0, 4.2),
    Sketcher.Constraint("DistanceX", 0, 3, -1, 1, 46.0),
    Sketcher.Constraint("DistanceY", -1, 1, 0, 3, 57.0),
])
pocket7 = doc.addObject("PartDesign::Pocket", "Pocket006")
body.addObject(pocket7)
pocket7.Profile = sketch10
pocket7.Type = "UpToFirst"

sketch11 = doc.addObject("Sketcher::SketchObject", "Sketch010")
body.addObject(sketch11)
sketch11.AttachmentSupport = (doc.XY_Plane, [""])
sketch11.MapMode = "FlatFace"
sketch11.AttachmentOffset = App.Placement(Vector(0, 0, 5), App.Rotation())
sketch11.addGeometry(Part.Circle(Vector(46, 57, 0), Vector(0, 0, 1), 2.1), False)
sketch11.addConstraint([
    Sketcher.Constraint("Diameter", 0, 4.2),
    Sketcher.Constraint("DistanceX", -1, 1, 0, 3, 46.0),
    Sketcher.Constraint("DistanceY", -1, 1, 0, 3, 57.0),
])
pocket8 = doc.addObject("PartDesign::Pocket", "Pocket007")
body.addObject(pocket8)
pocket8.Profile = sketch11
pocket8.Type = "UpToFirst"

sketch12 = doc.addObject("Sketcher::SketchObject", "Sketch011")
body.addObject(sketch12)
sketch12.AttachmentSupport = (doc.XY_Plane, [""])
sketch12.MapMode = "FlatFace"
sketch12.AttachmentOffset = App.Placement(Vector(0, 0, 5), App.Rotation())
sketch12.addGeometry(Part.Circle(Vector(46, -57, 0), Vector(0, 0, 1), 2.1), False)
sketch12.addConstraint([
    Sketcher.Constraint("Diameter", 0, 4.2),
    Sketcher.Constraint("DistanceX", -1, 1, 0, 3, 46.0),
    Sketcher.Constraint("DistanceY", 0, 3, -1, 1, 57.0),
])
pocket9 = doc.addObject("PartDesign::Pocket", "Pocket008")
body.addObject(pocket9)
pocket9.Profile = sketch12
pocket9.Type = "UpToFirst"

sketch13 = doc.addObject("Sketcher::SketchObject", "Sketch012")
body.addObject(sketch13)
sketch13.AttachmentSupport = (doc.XY_Plane, [""])
sketch13.MapMode = "FlatFace"
sketch13.AttachmentOffset = App.Placement(Vector(0, 0, 5), App.Rotation())
sketch13.addGeometry(Part.Circle(Vector(-46, -57, 0), Vector(0, 0, 1), 2.1), False)
sketch13.addConstraint([
    Sketcher.Constraint("Diameter", 0, 4.2),
    Sketcher.Constraint("DistanceX", 0, 3, -1, 1, 46.0),
    Sketcher.Constraint("DistanceY", 0, 3, -1, 1, 57.0),
])
pocket10 = doc.addObject("PartDesign::Pocket", "Pocket009")
body.addObject(pocket10)
pocket10.Profile = sketch13
pocket10.Type = "UpToFirst"

doc.recompute()
